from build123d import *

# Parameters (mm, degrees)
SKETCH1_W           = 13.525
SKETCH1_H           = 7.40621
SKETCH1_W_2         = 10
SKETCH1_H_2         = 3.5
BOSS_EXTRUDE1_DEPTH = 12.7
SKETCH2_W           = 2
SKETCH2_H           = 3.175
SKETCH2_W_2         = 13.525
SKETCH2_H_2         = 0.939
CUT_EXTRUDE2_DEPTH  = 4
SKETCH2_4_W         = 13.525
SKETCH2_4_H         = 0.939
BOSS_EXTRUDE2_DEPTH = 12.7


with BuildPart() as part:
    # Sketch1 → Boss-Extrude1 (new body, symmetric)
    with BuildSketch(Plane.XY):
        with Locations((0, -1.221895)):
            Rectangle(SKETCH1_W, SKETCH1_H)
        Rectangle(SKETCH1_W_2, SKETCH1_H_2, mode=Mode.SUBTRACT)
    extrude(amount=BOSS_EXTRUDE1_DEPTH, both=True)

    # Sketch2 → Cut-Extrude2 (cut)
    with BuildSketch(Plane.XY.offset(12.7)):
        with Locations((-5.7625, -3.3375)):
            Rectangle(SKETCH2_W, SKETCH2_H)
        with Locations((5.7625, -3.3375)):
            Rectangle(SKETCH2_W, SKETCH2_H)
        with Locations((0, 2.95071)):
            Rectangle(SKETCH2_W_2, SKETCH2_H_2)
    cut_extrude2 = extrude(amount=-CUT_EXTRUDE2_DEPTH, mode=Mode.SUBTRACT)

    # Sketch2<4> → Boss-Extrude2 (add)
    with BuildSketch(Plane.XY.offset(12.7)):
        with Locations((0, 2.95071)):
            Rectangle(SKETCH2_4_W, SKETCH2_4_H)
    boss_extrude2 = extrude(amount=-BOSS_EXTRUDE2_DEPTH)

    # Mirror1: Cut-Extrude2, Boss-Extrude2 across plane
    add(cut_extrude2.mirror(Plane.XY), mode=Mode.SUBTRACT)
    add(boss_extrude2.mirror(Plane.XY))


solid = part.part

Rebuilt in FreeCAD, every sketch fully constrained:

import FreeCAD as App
import Part
import Sketcher


def add_polygon(sketch, points):
    """Adds a closed chain of lines whose ends are joined by coincident constraints."""
    first, n = sketch.GeometryCount, len(points)
    for a, b in zip(points, points[1:] + points[:1]):
        sketch.addGeometry(Part.LineSegment(App.Vector(*a, 0), App.Vector(*b, 0)), False)
    for i in range(n):
        sketch.addConstraint(Sketcher.Constraint("Coincident", first + i, 2, first + (i + 1) % n, 1))

doc = App.newDocument("Part")
body = doc.addObject("PartDesign::Body", "Body")

# Sketch on XY plane
sketch1 = doc.addObject("Sketcher::SketchObject", "Sketch")
body.addObject(sketch1)
sketch1.AttachmentSupport = (doc.XY_Plane, [""])
sketch1.MapMode = "FlatFace"
add_polygon(sketch1, [(-6.8, 2.5), (-6.8, -4.9), (6.8, -4.9), (6.8, 2.5)])  # lines 0-3
add_polygon(sketch1, [(5, -1.8), (-5, -1.8), (-5, 1.8), (5, 1.8)])  # lines 4-7
sketch1.addConstraint(Sketcher.Constraint("Vertical", 0))
sketch1.addConstraint(Sketcher.Constraint("Horizontal", 1))
sketch1.addConstraint(Sketcher.Constraint("Vertical", 2))
sketch1.addConstraint(Sketcher.Constraint("Horizontal", 3))
sketch1.addConstraint(Sketcher.Constraint("Horizontal", 4))
sketch1.addConstraint(Sketcher.Constraint("Vertical", 5))
sketch1.addConstraint(Sketcher.Constraint("Horizontal", 6))
sketch1.addConstraint(Sketcher.Constraint("Vertical", 7))
sketch1.addConstraint(Sketcher.Constraint("Symmetric", 4, 2, 6, 2, -1, 1))
sketch1.addConstraint(Sketcher.Constraint("DistanceX", 4, 2, 4, 1, 10.0))
sketch1.addConstraint(Sketcher.Constraint("DistanceY", 5, 1, 5, 2, 3.5))
sketch1.addConstraint(Sketcher.Constraint("DistanceX", 1, 1, 1, 2, 13.525))
sketch1.addConstraint(Sketcher.Constraint("DistanceY", 0, 2, -1, 1, 4.925))
sketch1.addConstraint(Sketcher.Constraint("DistanceY", 0, 2, 0, 1, 7.40621))
sketch1.addConstraint(Sketcher.Constraint("DistanceX", 0, 2, -1, 1, 6.7625))
pad1 = doc.addObject("PartDesign::Pad", "Pad")
body.addObject(pad1)
pad1.Profile = sketch1
pad1.Length = 25.4
pad1.Midplane = True

# Sketch on XY plane
sketch2 = doc.addObject("Sketcher::SketchObject", "Sketch001")
body.addObject(sketch2)
sketch2.AttachmentSupport = (doc.XY_Plane, [""])
sketch2.MapMode = "FlatFace"
sketch2.AttachmentOffset = App.Placement(App.Vector(0, 0, 12.7), App.Rotation())
add_polygon(sketch2, [(-6.8, -1.8), (-6.8, -4.9), (-4.8, -4.9), (-4.8, -1.8)])  # lines 0-3
add_polygon(sketch2, [(4.8, -1.8), (4.8, -4.9), (6.8, -4.9), (6.8, -1.8)])  # lines 4-7
add_polygon(sketch2, [(-6.8, 3.4), (-6.8, 2.5), (6.8, 2.5), (6.8, 3.4)])  # lines 8-11
sketch2.addConstraint(Sketcher.Constraint("Vertical", 0))
sketch2.addConstraint(Sketcher.Constraint("Horizontal", 1))
sketch2.addConstraint(Sketcher.Constraint("Vertical", 2))
sketch2.addConstraint(Sketcher.Constraint("Horizontal", 3))
sketch2.addConstraint(Sketcher.Constraint("Vertical", 4))
sketch2.addConstraint(Sketcher.Constraint("Horizontal", 5))
sketch2.addConstraint(Sketcher.Constraint("Vertical", 6))
sketch2.addConstraint(Sketcher.Constraint("Horizontal", 7))
sketch2.addConstraint(Sketcher.Constraint("Vertical", 8))
sketch2.addConstraint(Sketcher.Constraint("Horizontal", 9))
sketch2.addConstraint(Sketcher.Constraint("Vertical", 10))
sketch2.addConstraint(Sketcher.Constraint("Horizontal", 11))
sketch2.addConstraint(Sketcher.Constraint("Symmetric", 1, 2, 4, 2, -2))
sketch2.addConstraint(Sketcher.Constraint("Symmetric", 3, 2, 6, 2, -2))
sketch2.addConstraint(Sketcher.Constraint("Vertical", 3, 2, 8, 2))
sketch2.addConstraint(Sketcher.Constraint("Vertical", 6, 2, 9, 2))
sketch2.addConstraint(Sketcher.Constraint("DistanceX", 1, 1, 1, 2, 2.0))
sketch2.addConstraint(Sketcher.Constraint("DistanceX", 9, 1, 9, 2, 13.525))
sketch2.addConstraint(Sketcher.Constraint("DistanceY", 0, 2, 0, 1, 3.175))
sketch2.addConstraint(Sketcher.Constraint("DistanceY", 8, 2, 8, 1, 0.939))
sketch2.addConstraint(Sketcher.Constraint("DistanceY", 2, 2, -1, 1, 1.75))
sketch2.addConstraint(Sketcher.Constraint("DistanceY", -1, 1, 8, 2, 2.48121))
pocket1 = doc.addObject("PartDesign::Pocket", "Pocket")
body.addObject(pocket1)
pocket1.Profile = sketch2
pocket1.Length = 4

# Sketch on XY plane
sketch3 = doc.addObject("Sketcher::SketchObject", "Sketch002")
body.addObject(sketch3)
sketch3.AttachmentSupport = (doc.XY_Plane, [""])
sketch3.MapMode = "FlatFace"
sketch3.AttachmentOffset = App.Placement(App.Vector(0, 0, 12.7), App.Rotation())
add_polygon(sketch3, [(-6.8, 3.4), (-6.8, 2.5), (6.8, 2.5), (6.8, 3.4)])  # lines 0-3
sketch3.addConstraint(Sketcher.Constraint("Vertical", 0))
sketch3.addConstraint(Sketcher.Constraint("Horizontal", 1))
sketch3.addConstraint(Sketcher.Constraint("Vertical", 2))
sketch3.addConstraint(Sketcher.Constraint("Horizontal", 3))
sketch3.addConstraint(Sketcher.Constraint("DistanceX", 1, 1, 1, 2, 13.525))
sketch3.addConstraint(Sketcher.Constraint("DistanceY", 0, 2, 0, 1, 0.939))
sketch3.addConstraint(Sketcher.Constraint("DistanceX", 0, 2, -1, 1, 6.7625))
sketch3.addConstraint(Sketcher.Constraint("DistanceY", -1, 1, 0, 2, 2.48121))
pad2 = doc.addObject("PartDesign::Pad", "Pad001")
body.addObject(pad2)
pad2.Profile = sketch3
pad2.Length = 12.7
pad2.Reversed = True
doc.recompute()

mirrored = doc.addObject("PartDesign::Mirrored", "Mirrored")
body.addObject(mirrored)
mirrored.Originals = [pocket1, pad2]
mirrored.MirrorPlane = (doc.XY_Plane, [""])
body.Tip = mirrored

doc.recompute()
